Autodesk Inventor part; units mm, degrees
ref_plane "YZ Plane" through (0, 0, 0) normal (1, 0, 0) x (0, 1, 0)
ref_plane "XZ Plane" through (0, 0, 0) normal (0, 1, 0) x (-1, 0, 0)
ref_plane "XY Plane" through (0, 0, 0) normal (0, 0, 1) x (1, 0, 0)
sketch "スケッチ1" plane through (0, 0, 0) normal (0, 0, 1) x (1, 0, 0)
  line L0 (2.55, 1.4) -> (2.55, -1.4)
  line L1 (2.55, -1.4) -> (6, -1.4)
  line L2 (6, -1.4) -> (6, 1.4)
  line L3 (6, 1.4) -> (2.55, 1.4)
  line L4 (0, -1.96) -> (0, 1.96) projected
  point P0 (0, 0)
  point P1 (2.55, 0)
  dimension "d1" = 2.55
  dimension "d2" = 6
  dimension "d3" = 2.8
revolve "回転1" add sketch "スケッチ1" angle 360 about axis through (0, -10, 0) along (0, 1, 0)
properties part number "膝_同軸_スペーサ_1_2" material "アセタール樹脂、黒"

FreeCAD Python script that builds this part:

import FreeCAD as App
import Part
import Sketcher

V = App.Vector
Q = App.Units.Quantity

doc = App.newDocument("Part")
body = doc.addObject("PartDesign::Body", "Body")

# Sketch on XY plane
sketch1 = doc.addObject("Sketcher::SketchObject", "Sketch")
body.addObject(sketch1)
sketch1.AttachmentSupport = (doc.XY_Plane, [""])
sketch1.MapMode = "FlatFace"
sketch1.addGeometry(Part.LineSegment(V(6, 1.4, 0), V(2.5, 1.4, 0)), False)
sketch1.addGeometry(Part.LineSegment(V(2.5, 1.4, 0), V(2.5, -1.4, 0)), False)
sketch1.addGeometry(Part.LineSegment(V(2.5, -1.4, 0), V(6, -1.4, 0)), False)
sketch1.addGeometry(Part.LineSegment(V(6, -1.4, 0), V(6, 1.4, 0)), False)
sketch1.addConstraint(Sketcher.Constraint("Coincident", 0, 2, 1, 1))
sketch1.addConstraint(Sketcher.Constraint("Coincident", 1, 2, 2, 1))
sketch1.addConstraint(Sketcher.Constraint("Coincident", 2, 2, 3, 1))
sketch1.addConstraint(Sketcher.Constraint("Coincident", 3, 2, 0, 1))
sketch1.addConstraint(Sketcher.Constraint("Horizontal", 0))
sketch1.addConstraint(Sketcher.Constraint("Vertical", 1))
sketch1.addConstraint(Sketcher.Constraint("Horizontal", 2))
sketch1.addConstraint(Sketcher.Constraint("Vertical", 3))
sketch1.addConstraint(Sketcher.Constraint("DistanceY", 1, 2, 1, 1, Q("2.8 mm")))
sketch1.addConstraint(Sketcher.Constraint("DistanceX", -1, 1, 2, 2, Q("6 mm")))
sketch1.addConstraint(Sketcher.Constraint("DistanceX", -1, 1, 0, 2, Q("2.55 mm")))
sketch1.addConstraint(Sketcher.Constraint("DistanceY", -1, 1, 0, 2, Q("1.4 mm")))
revolution = doc.addObject("PartDesign::Revolution", "Revolution")
body.addObject(revolution)
revolution.Profile = sketch1
revolution.ReferenceAxis = (sketch1, ["V_Axis"])
revolution.Angle = 360

doc.recompute()
